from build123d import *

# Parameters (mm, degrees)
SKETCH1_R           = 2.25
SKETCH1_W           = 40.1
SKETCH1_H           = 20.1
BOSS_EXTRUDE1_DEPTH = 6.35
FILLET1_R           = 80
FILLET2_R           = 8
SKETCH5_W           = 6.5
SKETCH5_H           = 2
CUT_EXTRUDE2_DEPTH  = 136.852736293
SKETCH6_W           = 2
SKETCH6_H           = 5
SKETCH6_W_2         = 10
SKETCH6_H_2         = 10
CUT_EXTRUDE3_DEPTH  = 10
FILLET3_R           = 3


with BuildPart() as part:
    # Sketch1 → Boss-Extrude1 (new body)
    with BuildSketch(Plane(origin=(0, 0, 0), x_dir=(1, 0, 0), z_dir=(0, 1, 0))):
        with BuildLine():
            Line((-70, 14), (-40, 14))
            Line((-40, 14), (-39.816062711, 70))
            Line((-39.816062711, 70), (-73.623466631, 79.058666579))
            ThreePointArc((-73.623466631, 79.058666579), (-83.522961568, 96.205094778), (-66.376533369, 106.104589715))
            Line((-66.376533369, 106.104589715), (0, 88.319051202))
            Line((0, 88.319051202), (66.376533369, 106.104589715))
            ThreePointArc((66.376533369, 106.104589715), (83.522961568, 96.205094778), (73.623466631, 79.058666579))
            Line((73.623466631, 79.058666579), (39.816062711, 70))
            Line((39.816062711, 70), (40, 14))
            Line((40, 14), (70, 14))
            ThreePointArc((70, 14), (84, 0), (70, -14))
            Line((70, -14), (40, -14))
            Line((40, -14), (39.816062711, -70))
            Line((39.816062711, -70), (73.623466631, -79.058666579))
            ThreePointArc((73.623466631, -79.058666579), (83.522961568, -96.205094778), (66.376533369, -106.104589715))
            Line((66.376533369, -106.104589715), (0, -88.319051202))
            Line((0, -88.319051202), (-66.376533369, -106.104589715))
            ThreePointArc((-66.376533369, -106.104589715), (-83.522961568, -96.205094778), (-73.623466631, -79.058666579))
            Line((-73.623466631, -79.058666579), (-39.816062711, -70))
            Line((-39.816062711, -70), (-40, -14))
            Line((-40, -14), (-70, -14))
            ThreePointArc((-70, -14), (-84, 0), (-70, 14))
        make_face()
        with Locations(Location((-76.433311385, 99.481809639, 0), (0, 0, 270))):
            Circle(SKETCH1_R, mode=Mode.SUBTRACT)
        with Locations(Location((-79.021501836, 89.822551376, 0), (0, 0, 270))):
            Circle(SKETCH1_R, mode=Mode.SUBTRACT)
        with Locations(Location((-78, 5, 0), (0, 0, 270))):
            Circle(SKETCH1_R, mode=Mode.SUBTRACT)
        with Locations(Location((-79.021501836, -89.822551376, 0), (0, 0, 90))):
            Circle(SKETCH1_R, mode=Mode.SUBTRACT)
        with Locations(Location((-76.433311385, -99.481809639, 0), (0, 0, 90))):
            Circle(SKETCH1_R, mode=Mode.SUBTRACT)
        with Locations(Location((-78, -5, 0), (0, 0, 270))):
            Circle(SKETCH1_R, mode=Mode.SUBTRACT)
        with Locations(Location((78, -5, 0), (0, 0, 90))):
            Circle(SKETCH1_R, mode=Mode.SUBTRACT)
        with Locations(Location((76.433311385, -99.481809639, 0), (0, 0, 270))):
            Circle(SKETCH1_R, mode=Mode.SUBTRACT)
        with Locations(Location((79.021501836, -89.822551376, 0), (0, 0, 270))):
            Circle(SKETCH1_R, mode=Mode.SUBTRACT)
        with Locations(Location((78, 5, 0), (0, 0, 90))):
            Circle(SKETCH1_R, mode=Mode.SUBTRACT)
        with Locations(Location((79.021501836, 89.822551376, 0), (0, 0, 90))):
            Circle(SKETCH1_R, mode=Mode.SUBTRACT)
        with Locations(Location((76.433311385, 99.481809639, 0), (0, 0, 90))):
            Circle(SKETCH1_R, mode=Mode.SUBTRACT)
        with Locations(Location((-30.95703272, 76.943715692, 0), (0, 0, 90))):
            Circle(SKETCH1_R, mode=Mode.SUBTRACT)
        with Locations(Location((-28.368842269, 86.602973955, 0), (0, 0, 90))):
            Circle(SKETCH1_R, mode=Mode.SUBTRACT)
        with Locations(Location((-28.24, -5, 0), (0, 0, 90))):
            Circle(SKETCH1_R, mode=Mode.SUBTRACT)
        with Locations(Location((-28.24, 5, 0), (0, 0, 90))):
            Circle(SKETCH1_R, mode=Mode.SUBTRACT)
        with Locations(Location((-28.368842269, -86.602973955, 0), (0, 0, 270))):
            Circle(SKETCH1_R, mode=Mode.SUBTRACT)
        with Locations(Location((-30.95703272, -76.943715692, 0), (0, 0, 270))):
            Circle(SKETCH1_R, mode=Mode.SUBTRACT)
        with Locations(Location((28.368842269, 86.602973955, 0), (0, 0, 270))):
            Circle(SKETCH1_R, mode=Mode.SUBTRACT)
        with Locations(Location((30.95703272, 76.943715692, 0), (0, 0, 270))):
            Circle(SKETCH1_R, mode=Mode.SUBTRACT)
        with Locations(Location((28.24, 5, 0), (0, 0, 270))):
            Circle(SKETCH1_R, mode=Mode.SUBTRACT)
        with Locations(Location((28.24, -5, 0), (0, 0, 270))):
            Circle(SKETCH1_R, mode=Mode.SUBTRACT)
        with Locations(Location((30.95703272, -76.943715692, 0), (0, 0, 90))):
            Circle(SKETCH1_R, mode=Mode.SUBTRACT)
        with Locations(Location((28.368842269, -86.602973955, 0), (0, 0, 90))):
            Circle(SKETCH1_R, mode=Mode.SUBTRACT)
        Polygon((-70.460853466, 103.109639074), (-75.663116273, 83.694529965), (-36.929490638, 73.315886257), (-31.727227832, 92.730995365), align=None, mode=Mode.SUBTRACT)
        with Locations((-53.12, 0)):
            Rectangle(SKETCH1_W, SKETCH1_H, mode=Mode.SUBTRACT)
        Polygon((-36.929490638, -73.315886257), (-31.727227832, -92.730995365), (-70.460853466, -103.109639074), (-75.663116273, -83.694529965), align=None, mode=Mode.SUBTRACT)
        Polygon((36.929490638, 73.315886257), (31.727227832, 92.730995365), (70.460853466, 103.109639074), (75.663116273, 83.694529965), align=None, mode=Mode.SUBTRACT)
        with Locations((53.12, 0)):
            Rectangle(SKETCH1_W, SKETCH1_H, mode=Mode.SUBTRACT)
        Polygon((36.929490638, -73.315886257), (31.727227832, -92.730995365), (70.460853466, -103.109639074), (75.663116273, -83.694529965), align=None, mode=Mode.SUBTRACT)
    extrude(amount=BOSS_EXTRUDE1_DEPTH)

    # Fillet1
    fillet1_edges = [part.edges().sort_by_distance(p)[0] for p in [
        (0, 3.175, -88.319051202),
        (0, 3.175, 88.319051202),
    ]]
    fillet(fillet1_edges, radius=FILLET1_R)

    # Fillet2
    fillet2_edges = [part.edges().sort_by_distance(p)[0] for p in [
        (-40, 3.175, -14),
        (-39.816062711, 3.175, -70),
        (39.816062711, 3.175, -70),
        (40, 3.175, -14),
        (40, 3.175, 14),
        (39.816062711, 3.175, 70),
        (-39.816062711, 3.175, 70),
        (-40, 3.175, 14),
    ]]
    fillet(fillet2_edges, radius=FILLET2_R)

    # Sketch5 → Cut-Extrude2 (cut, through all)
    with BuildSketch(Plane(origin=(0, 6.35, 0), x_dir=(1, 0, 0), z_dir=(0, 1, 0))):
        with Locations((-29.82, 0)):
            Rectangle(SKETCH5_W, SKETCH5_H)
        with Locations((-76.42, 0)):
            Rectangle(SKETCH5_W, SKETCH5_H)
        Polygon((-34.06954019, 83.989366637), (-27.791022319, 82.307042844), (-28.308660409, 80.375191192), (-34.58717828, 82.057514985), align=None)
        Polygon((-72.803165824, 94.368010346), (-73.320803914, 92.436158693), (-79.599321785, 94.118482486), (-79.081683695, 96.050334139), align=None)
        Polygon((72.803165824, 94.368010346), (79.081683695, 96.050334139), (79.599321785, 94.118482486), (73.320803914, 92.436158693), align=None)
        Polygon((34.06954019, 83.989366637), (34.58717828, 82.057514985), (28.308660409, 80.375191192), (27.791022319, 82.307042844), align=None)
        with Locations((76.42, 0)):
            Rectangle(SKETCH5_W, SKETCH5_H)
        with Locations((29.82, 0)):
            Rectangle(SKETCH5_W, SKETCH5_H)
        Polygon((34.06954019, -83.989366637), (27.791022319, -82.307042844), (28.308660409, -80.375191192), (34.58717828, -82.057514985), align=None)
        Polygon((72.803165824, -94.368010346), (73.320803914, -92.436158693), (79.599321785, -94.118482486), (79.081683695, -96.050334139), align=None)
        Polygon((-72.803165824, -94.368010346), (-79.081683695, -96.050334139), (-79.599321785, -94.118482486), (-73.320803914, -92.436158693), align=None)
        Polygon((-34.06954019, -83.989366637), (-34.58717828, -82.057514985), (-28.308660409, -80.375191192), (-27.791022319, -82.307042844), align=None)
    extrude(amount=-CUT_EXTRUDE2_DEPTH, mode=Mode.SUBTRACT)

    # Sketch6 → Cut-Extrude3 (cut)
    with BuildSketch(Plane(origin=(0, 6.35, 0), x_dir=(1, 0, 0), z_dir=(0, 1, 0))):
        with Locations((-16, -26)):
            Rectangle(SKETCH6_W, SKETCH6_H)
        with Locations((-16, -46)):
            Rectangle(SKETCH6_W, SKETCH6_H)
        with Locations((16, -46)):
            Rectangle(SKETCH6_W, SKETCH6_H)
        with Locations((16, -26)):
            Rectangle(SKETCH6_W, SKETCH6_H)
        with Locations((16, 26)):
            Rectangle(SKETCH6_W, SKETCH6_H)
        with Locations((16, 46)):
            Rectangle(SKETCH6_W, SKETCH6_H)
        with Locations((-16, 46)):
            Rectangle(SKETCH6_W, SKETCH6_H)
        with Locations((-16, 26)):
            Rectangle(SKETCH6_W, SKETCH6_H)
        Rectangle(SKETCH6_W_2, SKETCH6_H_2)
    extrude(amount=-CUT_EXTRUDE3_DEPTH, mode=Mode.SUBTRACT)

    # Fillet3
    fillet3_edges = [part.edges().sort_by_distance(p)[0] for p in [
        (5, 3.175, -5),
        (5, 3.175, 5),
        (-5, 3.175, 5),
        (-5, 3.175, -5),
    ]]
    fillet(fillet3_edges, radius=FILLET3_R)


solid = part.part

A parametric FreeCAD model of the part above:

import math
import FreeCAD as App
import Part
import Sketcher
from FreeCAD import Vector
Q = App.Units.Quantity


def edges_at(feature, points):
    """Names of the edges that pass closest to the given points."""
    edges = feature.Shape.Edges
    near = lambda p: min(range(len(edges)), key=lambda i: edges[i].distToShape(Part.Vertex(*p))[0])
    return sorted({f"Edge{near(p) + 1}" for p in points})


def add_polygon(sketch, points):
    """Adds a closed chain of lines whose ends are joined by coincident constraints."""
    first, n = sketch.GeometryCount, len(points)
    for a, b in zip(points, points[1:] + points[:1]):
        sketch.addGeometry(Part.LineSegment(App.Vector(*a, 0), App.Vector(*b, 0)), False)
    for i in range(n):
        sketch.addConstraint(Sketcher.Constraint("Coincident", first + i, 2, first + (i + 1) % n, 1))

doc = App.newDocument("Part")
body = doc.addObject("PartDesign::Body", "Body")

# Sketch on XZ plane
sketch1 = body.newObject("Sketcher::SketchObject", "Sketch")
sketch1.AttachmentSupport = (doc.getObject("XZ_Plane"), [""])
sketch1.MapMode = "FlatFace"
sketch1.addGeometry(Part.LineSegment(Vector(-40, -14, 0), Vector(-70, -14, 0)), False)  # 0
sketch1.addGeometry(Part.ArcOfCircle(Part.Circle(Vector(-70, 0, 0), Vector(0, 0, 1), 14), math.radians(90), math.radians(270)), False)  # 1
sketch1.addGeometry(Part.LineSegment(Vector(-70, 14, 0), Vector(-40, 14, 0)), False)  # 2
sketch1.addGeometry(Part.LineSegment(Vector(-40, 14, 0), Vector(-39.816063, 70, 0)), False)  # 3
sketch1.addGeometry(Part.LineSegment(Vector(-39.816063, 70, 0), Vector(-73.623467, 79.058667, 0)), False)  # 4
sketch1.addGeometry(Part.ArcOfCircle(Part.Circle(Vector(-70, 92.581628, 0), Vector(0, 0, 1), 14), math.radians(75), math.radians(255)), False)  # 5
sketch1.addGeometry(Part.LineSegment(Vector(-66.376533, 106.10459, 0), Vector(0, 88.319051, 0)), False)  # 6
sketch1.addGeometry(Part.LineSegment(Vector(0, 88.319051, 0), Vector(66.376533, 106.10459, 0)), False)  # 7
sketch1.addGeometry(Part.ArcOfCircle(Part.Circle(Vector(70, 92.581628, 0), Vector(0, 0, 1), 14), math.radians(-75), math.radians(105)), False)  # 8
sketch1.addGeometry(Part.LineSegment(Vector(73.623467, 79.058667, 0), Vector(39.816063, 70, 0)), False)  # 9
sketch1.addGeometry(Part.LineSegment(Vector(39.816063, 70, 0), Vector(40, 14, 0)), False)  # 10
sketch1.addGeometry(Part.LineSegment(Vector(40, 14, 0), Vector(70, 14, 0)), False)  # 11
sketch1.addGeometry(Part.ArcOfCircle(Part.Circle(Vector(70, 0, 0), Vector(0, 0, 1), 14), math.radians(-90), math.radians(90)), False)  # 12
sketch1.addGeometry(Part.LineSegment(Vector(70, -14, 0), Vector(40, -14, 0)), False)  # 13
sketch1.addGeometry(Part.LineSegment(Vector(40, -14, 0), Vector(39.816063, -70, 0)), False)  # 14
sketch1.addGeometry(Part.LineSegment(Vector(39.816063, -70, 0), Vector(73.623467, -79.058667, 0)), False)  # 15
sketch1.addGeometry(Part.ArcOfCircle(Part.Circle(Vector(70, -92.581628, 0), Vector(0, 0, 1), 14), math.radians(-105), math.radians(75)), False)  # 16
sketch1.addGeometry(Part.LineSegment(Vector(66.376533, -106.10459, 0), Vector(0, -88.319051, 0)), False)  # 17
sketch1.addGeometry(Part.LineSegment(Vector(0, -88.319051, 0), Vector(-66.376533, -106.10459, 0)), False)  # 18
sketch1.addGeometry(Part.ArcOfCircle(Part.Circle(Vector(-70, -92.581628, 0), Vector(0, 0, 1), 14), math.radians(105), math.radians(285)), False)  # 19
sketch1.addGeometry(Part.LineSegment(Vector(-73.623467, -79.058667, 0), Vector(-39.816063, -70, 0)), False)  # 20
sketch1.addGeometry(Part.LineSegment(Vector(-39.816063, -70, 0), Vector(-40, -14, 0)), False)  # 21
sketch1.addGeometry(Part.Circle(Vector(76.433311, 99.48181, 0), Vector(0, 0, 1), 2.25), False)  # 22
sketch1.addGeometry(Part.Circle(Vector(79.021502, 89.822551, 0), Vector(0, 0, 1), 2.25), False)  # 23
add_polygon(sketch1, [(36.929491, 73.315886), (75.663116, 83.69453), (70.460853, 103.109639), (31.727228, 92.730995)])  # lines 24-27
sketch1.addGeometry(Part.Circle(Vector(28.368842, 86.602974, 0), Vector(0, 0, 1), 2.25), False)  # 28
sketch1.addGeometry(Part.Circle(Vector(30.957033, 76.943716, 0), Vector(0, 0, 1), 2.25), False)  # 29
sketch1.addGeometry(Part.Circle(Vector(78, 5, 0), Vector(0, 0, 1), 2.25), False)  # 30
sketch1.addGeometry(Part.Circle(Vector(28.24, 5, 0), Vector(0, 0, 1), 2.25), False)  # 31
sketch1.addGeometry(Part.Circle(Vector(-28.368842, 86.602974, 0), Vector(0, 0, 1), 2.25), False)  # 32
sketch1.addGeometry(Part.Circle(Vector(-30.957033, 76.943716, 0), Vector(0, 0, 1), 2.25), False)  # 33
add_polygon(sketch1, [(-36.929491, 73.315886), (-31.727228, 92.730995), (-70.460853, 103.109639), (-75.663116, 83.69453)])  # lines 34-37
sketch1.addGeometry(Part.Circle(Vector(-76.433311, 99.48181, 0), Vector(0, 0, 1), 2.25), False)  # 38
sketch1.addGeometry(Part.Circle(Vector(-79.021502, 89.822551, 0), Vector(0, 0, 1), 2.25), False)  # 39
sketch1.addGeometry(Part.Circle(Vector(-28.24, 5, 0), Vector(0, 0, 1), 2.25), False)  # 40
sketch1.addGeometry(Part.Circle(Vector(-78, 5, 0), Vector(0, 0, 1), 2.25), False)  # 41
sketch1.addGeometry(Part.Circle(Vector(78, -5, 0), Vector(0, 0, 1), 2.25), False)  # 42
add_polygon(sketch1, [(33.07, 10.05), (33.07, -10.05), (73.17, -10.05), (73.17, 10.05)])  # lines 43-46
sketch1.addGeometry(Part.Circle(Vector(28.24, -5, 0), Vector(0, 0, 1), 2.25), False)  # 47
sketch1.addGeometry(Part.Circle(Vector(79.021502, -89.822551, 0), Vector(0, 0, 1), 2.25), False)  # 48
sketch1.addGeometry(Part.Circle(Vector(76.433311, -99.48181, 0), Vector(0, 0, 1), 2.25), False)  # 49
add_polygon(sketch1, [(36.929491, -73.315886), (31.727228, -92.730995), (70.460853, -103.109639), (75.663116, -83.69453)])  # lines 50-53
sketch1.addGeometry(Part.Circle(Vector(30.957033, -76.943716, 0), Vector(0, 0, 1), 2.25), False)  # 54
sketch1.addGeometry(Part.Circle(Vector(28.368842, -86.602974, 0), Vector(0, 0, 1), 2.25), False)  # 55
sketch1.addGeometry(Part.Circle(Vector(-28.24, -5, 0), Vector(0, 0, 1), 2.25), False)  # 56
add_polygon(sketch1, [(-73.17, 10.05), (-73.17, -10.05), (-33.07, -10.05), (-33.07, 10.05)])  # lines 57-60
sketch1.addGeometry(Part.Circle(Vector(-78, -5, 0), Vector(0, 0, 1), 2.25), False)  # 61
sketch1.addGeometry(Part.Circle(Vector(-30.957033, -76.943716, 0), Vector(0, 0, 1), 2.25), False)  # 62
sketch1.addGeometry(Part.Circle(Vector(-28.368842, -86.602974, 0), Vector(0, 0, 1), 2.25), False)  # 63
add_polygon(sketch1, [(-70.460853, -103.109639), (-31.727228, -92.730995), (-36.929491, -73.315886), (-75.663116, -83.69453)])  # lines 64-67
sketch1.addGeometry(Part.Circle(Vector(-79.021502, -89.822551, 0), Vector(0, 0, 1), 2.25), False)  # 68
sketch1.addGeometry(Part.Circle(Vector(-76.433311, -99.48181, 0), Vector(0, 0, 1), 2.25), False)  # 69
sketch1.addConstraint([
    Sketcher.Constraint("Tangent", 0, 2, 1, 2),
    Sketcher.Constraint("Tangent", 1, 1, 2, 1),
    Sketcher.Constraint("Coincident", 2, 2, 3, 1),
    Sketcher.Constraint("Coincident", 3, 2, 4, 1),
    Sketcher.Constraint("Tangent", 4, 2, 5, 2),
    Sketcher.Constraint("Tangent", 5, 1, 6, 1),
    Sketcher.Constraint("Coincident", 6, 2, 7, 1),
    Sketcher.Constraint("Tangent", 7, 2, 8, 2),
    Sketcher.Constraint("Tangent", 8, 1, 9, 1),
    Sketcher.Constraint("Coincident", 9, 2, 10, 1),
    Sketcher.Constraint("Coincident", 10, 2, 11, 1),
    Sketcher.Constraint("Tangent", 11, 2, 12, 2),
    Sketcher.Constraint("Tangent", 12, 1, 13, 1),
    Sketcher.Constraint("Coincident", 13, 2, 14, 1),
    Sketcher.Constraint("Coincident", 14, 2, 15, 1),
    Sketcher.Constraint("Tangent", 15, 2, 16, 2),
    Sketcher.Constraint("Tangent", 16, 1, 17, 1),
    Sketcher.Constraint("Coincident", 17, 2, 18, 1),
    Sketcher.Constraint("Tangent", 18, 2, 19, 2),
    Sketcher.Constraint("Tangent", 19, 1, 20, 1),
    Sketcher.Constraint("Coincident", 20, 2, 21, 1),
    Sketcher.Constraint("Coincident", 21, 2, 0, 1),
    Sketcher.Constraint("Horizontal", 0),
    Sketcher.Constraint("Horizontal", 2),
    Sketcher.Constraint("Horizontal", 11),
    Sketcher.Constraint("Horizontal", 13),
    Sketcher.Constraint("Vertical", 43),
    Sketcher.Constraint("Horizontal", 44),
    Sketcher.Constraint("Vertical", 45),
    Sketcher.Constraint("Horizontal", 46),
    Sketcher.Constraint("Vertical", 57),
    Sketcher.Constraint("Horizontal", 58),
    Sketcher.Constraint("Vertical", 59),
    Sketcher.Constraint("Horizontal", 60),
    Sketcher.Constraint("Equal", 1, 5),
    Sketcher.Constraint("Equal", 5, 8),
    Sketcher.Constraint("Equal", 8, 12),
    Sketcher.Constraint("Equal", 12, 16),
    Sketcher.Constraint("Equal", 16, 19),
    Sketcher.Constraint("Equal", 22, 23),
    Sketcher.Constraint("Equal", 23, 28),
    Sketcher.Constraint("Equal", 28, 29),
    Sketcher.Constraint("Equal", 29, 30),
    Sketcher.Constraint("Equal", 30, 31),
    Sketcher.Constraint("Equal", 31, 32),
    Sketcher.Constraint("Equal", 32, 33),
    Sketcher.Constraint("Equal", 33, 38),
    Sketcher.Constraint("Equal", 38, 39),
    Sketcher.Constraint("Equal", 39, 40),
    Sketcher.Constraint("Equal", 40, 41),
    Sketcher.Constraint("Equal", 41, 42),
    Sketcher.Constraint("Equal", 42, 47),
    Sketcher.Constraint("Equal", 47, 48),
    Sketcher.Constraint("Equal", 48, 49),
    Sketcher.Constraint("Equal", 49, 54),
    Sketcher.Constraint("Equal", 54, 55),
    Sketcher.Constraint("Equal", 55, 56),
    Sketcher.Constraint("Equal", 56, 61),
    Sketcher.Constraint("Equal", 61, 62),
    Sketcher.Constraint("Equal", 62, 63),
    Sketcher.Constraint("Equal", 63, 68),
    Sketcher.Constraint("Equal", 68, 69),
    Sketcher.Constraint("Symmetric", 1, 3, 12, 3, -1, 1),
    Sketcher.Constraint("Symmetric", 5, 3, 16, 3, -1, 1),
    Sketcher.Constraint("Symmetric", 8, 3, 19, 3, -1, 1),
    Sketcher.Constraint("Symmetric", 41, 3, 42, 3, -1, 1),
    Sketcher.Constraint("Symmetric", 40, 3, 47, 3, -1, 1),
    Sketcher.Constraint("Symmetric", 39, 3, 48, 3, -1, 1),
    Sketcher.Constraint("Symmetric", 38, 3, 49, 3, -1, 1),
    Sketcher.Constraint("Symmetric", 33, 3, 54, 3, -1, 1),
    Sketcher.Constraint("Symmetric", 32, 3, 55, 3, -1, 1),
    Sketcher.Constraint("Symmetric", 31, 3, 56, 3, -1, 1),
    Sketcher.Constraint("Symmetric", 30, 3, 61, 3, -1, 1),
    Sketcher.Constraint("Symmetric", 29, 3, 62, 3, -1, 1),
    Sketcher.Constraint("Symmetric", 28, 3, 63, 3, -1, 1),
    Sketcher.Constraint("Symmetric", 23, 3, 68, 3, -1, 1),
    Sketcher.Constraint("Symmetric", 22, 3, 69, 3, -1, 1),
    Sketcher.Constraint("Symmetric", 3, 2, 14, 2, -1, 1),
    Sketcher.Constraint("Symmetric", 6, 2, 17, 2, -1, 1),
    Sketcher.Constraint("Symmetric", 9, 2, 20, 2, -1, 1),
    Sketcher.Constraint("Symmetric", 34, 2, 50, 2, -1, 1),
    Sketcher.Constraint("Symmetric", 35, 2, 51, 2, -1, 1),
    Sketcher.Constraint("Symmetric", 36, 2, 52, 2, -1, 1),
    Sketcher.Constraint("Symmetric", 37, 2, 53, 2, -1, 1),
    Sketcher.Constraint("Symmetric", 45, 2, 57, 2, -1, 1),
    Sketcher.Constraint("Symmetric", 43, 2, 59, 2, -1, 1),
    Sketcher.Constraint("Symmetric", 26, 2, 64, 2, -1, 1),
    Sketcher.Constraint("Symmetric", 27, 2, 65, 2, -1, 1),
    Sketcher.Constraint("Symmetric", 24, 2, 66, 2, -1, 1),
    Sketcher.Constraint("Symmetric", 25, 2, 67, 2, -1, 1),
    Sketcher.Constraint("Symmetric", 5, 3, 8, 3, -2),
    Sketcher.Constraint("Symmetric", 28, 3, 32, 3, -2),
    Sketcher.Constraint("Symmetric", 29, 3, 33, 3, -2),
    Sketcher.Constraint("Symmetric", 22, 3, 38, 3, -2),
    Sketcher.Constraint("Symmetric", 23, 3, 39, 3, -2),
    Sketcher.Constraint("Symmetric", 31, 3, 40, 3, -2),
    Sketcher.Constraint("Symmetric", 30, 3, 41, 3, -2),
    Sketcher.Constraint("Symmetric", 3, 2, 9, 2, -2),
    Sketcher.Constraint("Symmetric", 2, 2, 10, 2, -2),
    Sketcher.Constraint("Symmetric", 26, 2, 34, 2, -2),
    Sketcher.Constraint("Symmetric", 25, 2, 35, 2, -2),
    Sketcher.Constraint("Symmetric", 24, 2, 36, 2, -2),
    Sketcher.Constraint("Symmetric", 27, 2, 37, 2, -2),
    Sketcher.Constraint("PointOnObject", 6, 2, -2),
    Sketcher.Constraint("Parallel", 4, 6),
    Sketcher.Constraint("Parallel", 3, 14),
    Sketcher.Constraint("Parallel", 10, 21),
    Sketcher.Constraint("Parallel", 20, 24),
    Sketcher.Constraint("Perpendicular", 24, 25),
    Sketcher.Constraint("Perpendicular", 25, 26),
    Sketcher.Constraint("Perpendicular", 26, 27),
    Sketcher.Constraint("Horizontal", 30, 3, 31, 3),
    Sketcher.Constraint("Horizontal", 44, 2, 57, 2),
    Sketcher.Constraint("Vertical", 1, 3, 5, 3),
    Sketcher.Constraint("Radius", 1, 14.0),
    Sketcher.Constraint("Diameter", 22, 4.5),
    Sketcher.Constraint("DistanceX", 0, 2, 0, 1, 30.0),
    Sketcher.Constraint("Angle", 4, Q("165 deg")),
    Sketcher.Constraint("Distance", 4, 35.0),
    Sketcher.Constraint("DistanceX", 44, 1, 44, 2, 40.1),
    Sketcher.Constraint("DistanceY", 43, 2, 43, 1, 20.1),
    Sketcher.Constraint("DistanceX", 1, 3, -1, 1, 70.0),
    Sketcher.Constraint("DistanceX", -1, 1, 30, 3, 78.0),
    Sketcher.Constraint("DistanceY", -1, 1, 30, 3, 5.0),
    Sketcher.Constraint("DistanceY", -1, 1, 3, 2, 70.0),
    Sketcher.Constraint("Distance", 24, 40.1),
    Sketcher.Constraint("Distance", 25, 20.1),
    Sketcher.Constraint("DistanceX", -1, 1, 31, 3, 28.24),
    Sketcher.Constraint("DistanceX", -1, 1, 43, 2, 33.07),
    Sketcher.Constraint("DistanceX", -1, 1, 23, 3, 79.021502),
    Sketcher.Constraint("DistanceX", -1, 1, 22, 3, 76.433311),
    Sketcher.Constraint("DistanceY", -1, 1, 22, 3, 99.48181),
    Sketcher.Constraint("DistanceY", -1, 1, 23, 3, 89.822551),
    Sketcher.Constraint("DistanceY", -1, 1, 24, 2, 83.69453),
    Sketcher.Constraint("DistanceX", -1, 1, 27, 2, 36.929491),
    Sketcher.Constraint("DistanceX", -1, 1, 28, 3, 28.368842),
    Sketcher.Constraint("DistanceY", -1, 1, 28, 3, 86.602974),
    Sketcher.Constraint("DistanceX", -1, 1, 29, 3, 30.957033),
    Sketcher.Constraint("DistanceY", -1, 1, 29, 3, 76.943716),
])
pad1 = body.newObject("PartDesign::Pad", "Pad")
pad1.Profile = sketch1
pad1.Length = 6.35
pad1.Reversed = True
doc.recompute()

fillet = body.newObject("PartDesign::Fillet", "Fillet")
fillet.Base = (pad1, edges_at(pad1, [(0, 3.175, -88.319), (0, 3.175, 88.319)]))
fillet.Radius = 80
doc.recompute()

fillet2 = body.newObject("PartDesign::Fillet", "Fillet001")
fillet2.Base = (fillet, edges_at(fillet, [
    (-40, 3.175, -14),
    (-39.816, 3.175, -70),
    (39.816, 3.175, -70),
    (40, 3.175, -14),
    (40, 3.175, 14),
    (39.816, 3.175, 70),
    (-39.816, 3.175, 70),
    (-40, 3.175, 14),
]))
fillet2.Radius = 8

# Sketch on XZ plane
sketch2 = body.newObject("Sketcher::SketchObject", "Sketch001")
sketch2.AttachmentSupport = (doc.getObject("XZ_Plane"), [""])
sketch2.MapMode = "FlatFace"
sketch2.AttachmentOffset = App.Placement(Vector(0, 0, -6.35), App.Rotation())
add_polygon(sketch2, [(-33.07, -1), (-33.07, 1), (-26.57, 1), (-26.57, -1)])  # lines 0-3
add_polygon(sketch2, [(-79.67, -1), (-79.67, 1), (-73.17, 1), (-73.17, -1)])  # lines 4-7
add_polygon(sketch2, [(-27.791022, -82.307043), (-34.06954, -83.989367), (-34.587178, -82.057515), (-28.30866, -80.375191)])  # lines 8-11
add_polygon(sketch2, [(-73.320804, -92.436159), (-72.803166, -94.36801), (-79.081684, -96.050334), (-79.599322, -94.118482)])  # lines 12-15
add_polygon(sketch2, [(79.081684, -96.050334), (72.803166, -94.36801), (73.320804, -92.436159), (79.599322, -94.118482)])  # lines 16-19
add_polygon(sketch2, [(34.587178, -82.057515), (34.06954, -83.989367), (27.791022, -82.307043), (28.30866, -80.375191)])  # lines 20-23
add_polygon(sketch2, [(73.17, -1), (73.17, 1), (79.67, 1), (79.67, -1)])  # lines 24-27
add_polygon(sketch2, [(26.57, -1), (26.57, 1), (33.07, 1), (33.07, -1)])  # lines 28-31
add_polygon(sketch2, [(27.791022, 82.307043), (34.06954, 83.989367), (34.587178, 82.057515), (28.30866, 80.375191)])  # lines 32-35
add_polygon(sketch2, [(73.320804, 92.436159), (72.803166, 94.36801), (79.081684, 96.050334), (79.599322, 94.118482)])  # lines 36-39
add_polygon(sketch2, [(-79.081684, 96.050334), (-72.803166, 94.36801), (-73.320804, 92.436159), (-79.599322, 94.118482)])  # lines 40-43
add_polygon(sketch2, [(-34.587178, 82.057515), (-34.06954, 83.989367), (-27.791022, 82.307043), (-28.30866, 80.375191)])  # lines 44-47
sketch2.addConstraint([
    Sketcher.Constraint("Vertical", 0),
    Sketcher.Constraint("Horizontal", 1),
    Sketcher.Constraint("Vertical", 2),
    Sketcher.Constraint("Horizontal", 3),
    Sketcher.Constraint("Vertical", 4),
    Sketcher.Constraint("Horizontal", 5),
    Sketcher.Constraint("Vertical", 6),
    Sketcher.Constraint("Horizontal", 7),
    Sketcher.Constraint("Vertical", 24),
    Sketcher.Constraint("Horizontal", 25),
    Sketcher.Constraint("Vertical", 26),
    Sketcher.Constraint("Horizontal", 27),
    Sketcher.Constraint("Vertical", 28),
    Sketcher.Constraint("Horizontal", 29),
    Sketcher.Constraint("Vertical", 30),
    Sketcher.Constraint("Horizontal", 31),
    Sketcher.Constraint("Symmetric", 6, 2, 24, 2, -1, 1),
    Sketcher.Constraint("Symmetric", 4, 2, 26, 2, -1, 1),
    Sketcher.Constraint("Symmetric", 2, 2, 28, 2, -1, 1),
    Sketcher.Constraint("Symmetric", 0, 2, 30, 2, -1, 1),
    Sketcher.Constraint("Symmetric", 8, 2, 32, 2, -1, 1),
    Sketcher.Constraint("Symmetric", 9, 2, 33, 2, -1, 1),
    Sketcher.Constraint("Symmetric", 10, 2, 34, 2, -1, 1),
    Sketcher.Constraint("Symmetric", 11, 2, 35, 2, -1, 1),
    Sketcher.Constraint("Symmetric", 12, 2, 36, 2, -1, 1),
    Sketcher.Constraint("Symmetric", 13, 2, 37, 2, -1, 1),
    Sketcher.Constraint("Symmetric", 14, 2, 38, 2, -1, 1),
    Sketcher.Constraint("Symmetric", 15, 2, 39, 2, -1, 1),
    Sketcher.Constraint("Symmetric", 16, 2, 40, 2, -1, 1),
    Sketcher.Constraint("Symmetric", 17, 2, 41, 2, -1, 1),
    Sketcher.Constraint("Symmetric", 18, 2, 42, 2, -1, 1),
    Sketcher.Constraint("Symmetric", 19, 2, 43, 2, -1, 1),
    Sketcher.Constraint("Symmetric", 20, 2, 44, 2, -1, 1),
    Sketcher.Constraint("Symmetric", 21, 2, 45, 2, -1, 1),
    Sketcher.Constraint("Symmetric", 22, 2, 46, 2, -1, 1),
    Sketcher.Constraint("Symmetric", 23, 2, 47, 2, -1, 1),
    Sketcher.Constraint("Symmetric", 12, 2, 16, 2, -2),
    Sketcher.Constraint("Symmetric", 15, 2, 17, 2, -2),
    Sketcher.Constraint("Symmetric", 14, 2, 18, 2, -2),
    Sketcher.Constraint("Symmetric", 13, 2, 19, 2, -2),
    Sketcher.Constraint("Symmetric", 8, 2, 20, 2, -2),
    Sketcher.Constraint("Symmetric", 11, 2, 21, 2, -2),
    Sketcher.Constraint("Symmetric", 10, 2, 22, 2, -2),
    Sketcher.Constraint("Symmetric", 9, 2, 23, 2, -2),
    Sketcher.Constraint("Perpendicular", 8, 9),
    Sketcher.Constraint("Perpendicular", 9, 10),
    Sketcher.Constraint("Perpendicular", 10, 11),
    Sketcher.Constraint("Parallel", 11, 12),
    Sketcher.Constraint("Perpendicular", 12, 13),
    Sketcher.Constraint("Perpendicular", 13, 14),
    Sketcher.Constraint("Perpendicular", 14, 15),
    Sketcher.Constraint("Horizontal", 1, 2, 4, 2),
    Sketcher.Constraint("Horizontal", 3, 2, 6, 2),
    Sketcher.Constraint("Horizontal", 5, 2, 24, 2),
    Sketcher.Constraint("Equal", 3, 5),
    Sketcher.Constraint("Equal", 11, 12),
    Sketcher.Constraint("Equal", 10, 13),
    Sketcher.Constraint("DistanceY", 0, 1, 0, 2, 2.0),
    Sketcher.Constraint("Angle", 8, Q("-165 deg")),
    Sketcher.Constraint("Distance", 9, 2.0),
    Sketcher.Constraint("DistanceX", 1, 1, 1, 2, 6.5),
    Sketcher.Constraint("Distance", 8, 6.5),
    Sketcher.Constraint("DistanceX", 4, 2, 0, 2, 46.6),
    Sketcher.Constraint("DistanceX", 0, 2, -1, 1, 33.07),
    Sketcher.Constraint("DistanceX", 21, 2, 18, 2, 51.808299),
    Sketcher.Constraint("DistanceX", 8, 2, -1, 1, 34.06954),
    Sketcher.Constraint("DistanceY", 10, 2, -1, 1, 80.375191),
    Sketcher.Constraint("DistanceY", 12, 2, -1, 1, 94.36801),
])
pocket1 = body.newObject("PartDesign::Pocket", "Pocket")
pocket1.Profile = sketch2
pocket1.Type = "ThroughAll"
pocket1.Reversed = True

# Sketch on XZ plane
sketch3 = body.newObject("Sketcher::SketchObject", "Sketch002")
sketch3.AttachmentSupport = (doc.getObject("XZ_Plane"), [""])
sketch3.MapMode = "FlatFace"
sketch3.AttachmentOffset = App.Placement(Vector(0, 0, -6.35), App.Rotation())
add_polygon(sketch3, [(-17, 23.5), (-17, 28.5), (-15, 28.5), (-15, 23.5)])  # lines 0-3
add_polygon(sketch3, [(-17, 43.5), (-17, 48.5), (-15, 48.5), (-15, 43.5)])  # lines 4-7
add_polygon(sketch3, [(15, 43.5), (15, 48.5), (17, 48.5), (17, 43.5)])  # lines 8-11
add_polygon(sketch3, [(15, 23.5), (15, 28.5), (17, 28.5), (17, 23.5)])  # lines 12-15
add_polygon(sketch3, [(15, -28.5), (15, -23.5), (17, -23.5), (17, -28.5)])  # lines 16-19
add_polygon(sketch3, [(15, -48.5), (15, -43.5), (17, -43.5), (17, -48.5)])  # lines 20-23
add_polygon(sketch3, [(-17, -48.5), (-17, -43.5), (-15, -43.5), (-15, -48.5)])  # lines 24-27
add_polygon(sketch3, [(-17, -28.5), (-17, -23.5), (-15, -23.5), (-15, -28.5)])  # lines 28-31
add_polygon(sketch3, [(-5, -5), (-5, 5), (5, 5), (5, -5)])  # lines 32-35
sketch3.addConstraint([
    Sketcher.Constraint("Vertical", 0),
    Sketcher.Constraint("Horizontal", 1),
    Sketcher.Constraint("Vertical", 2),
    Sketcher.Constraint("Horizontal", 3),
    Sketcher.Constraint("Vertical", 4),
    Sketcher.Constraint("Horizontal", 5),
    Sketcher.Constraint("Vertical", 6),
    Sketcher.Constraint("Horizontal", 7),
    Sketcher.Constraint("Vertical", 8),
    Sketcher.Constraint("Horizontal", 9),
    Sketcher.Constraint("Vertical", 10),
    Sketcher.Constraint("Horizontal", 11),
    Sketcher.Constraint("Vertical", 12),
    Sketcher.Constraint("Horizontal", 13),
    Sketcher.Constraint("Vertical", 14),
    Sketcher.Constraint("Horizontal", 15),
    Sketcher.Constraint("Vertical", 16),
    Sketcher.Constraint("Horizontal", 17),
    Sketcher.Constraint("Vertical", 18),
    Sketcher.Constraint("Horizontal", 19),
    Sketcher.Constraint("Vertical", 20),
    Sketcher.Constraint("Horizontal", 21),
    Sketcher.Constraint("Vertical", 22),
    Sketcher.Constraint("Horizontal", 23),
    Sketcher.Constraint("Vertical", 24),
    Sketcher.Constraint("Horizontal", 25),
    Sketcher.Constraint("Vertical", 26),
    Sketcher.Constraint("Horizontal", 27),
    Sketcher.Constraint("Vertical", 28),
    Sketcher.Constraint("Horizontal", 29),
    Sketcher.Constraint("Vertical", 30),
    Sketcher.Constraint("Horizontal", 31),
    Sketcher.Constraint("Vertical", 32),
    Sketcher.Constraint("Horizontal", 33),
    Sketcher.Constraint("Vertical", 34),
    Sketcher.Constraint("Horizontal", 35),
    Sketcher.Constraint("Symmetric", 2, 2, 16, 2, -1, 1),
    Sketcher.Constraint("Symmetric", 0, 2, 18, 2, -1, 1),
    Sketcher.Constraint("Symmetric", 6, 2, 20, 2, -1, 1),
    Sketcher.Constraint("Symmetric", 4, 2, 22, 2, -1, 1),
    Sketcher.Constraint("Symmetric", 10, 2, 24, 2, -1, 1),
    Sketcher.Constraint("Symmetric", 8, 2, 26, 2, -1, 1),
    Sketcher.Constraint("Symmetric", 14, 2, 28, 2, -1, 1),
    Sketcher.Constraint("Symmetric", 12, 2, 30, 2, -1, 1),
    Sketcher.Constraint("Symmetric", 32, 2, 34, 2, -1, 1),
    Sketcher.Constraint("Symmetric", 5, 2, 8, 2, -2),
    Sketcher.Constraint("Symmetric", 7, 2, 10, 2, -2),
    Sketcher.Constraint("Symmetric", 1, 2, 12, 2, -2),
    Sketcher.Constraint("Symmetric", 3, 2, 14, 2, -2),
    Sketcher.Constraint("Vertical", 3, 2, 4, 2),
    Sketcher.Constraint("Vertical", 2, 2, 5, 2),
    Sketcher.Constraint("Equal", 2, 4),
    Sketcher.Constraint("Equal", 35, 32),
    Sketcher.Constraint("DistanceX", 1, 1, 1, 2, 2.0),
    Sketcher.Constraint("DistanceX", 33, 1, 33, 2, 10.0),
    Sketcher.Constraint("DistanceY", 0, 1, 0, 2, 5.0),
    Sketcher.Constraint("DistanceX", 0, 2, -1, 1, 17.0),
    Sketcher.Constraint("DistanceY", 0, 2, 4, 2, 20.0),
    Sketcher.Constraint("DistanceY", 16, 2, 15, 2, 47.0),
])
pocket2 = body.newObject("PartDesign::Pocket", "Pocket001")
pocket2.Profile = sketch3
pocket2.Length = 10
pocket2.Reversed = True
doc.recompute()

fillet3 = body.newObject("PartDesign::Fillet", "Fillet002")
fillet3.Base = (pocket2, edges_at(pocket2, [
    (5, 3.175, -5),
    (5, 3.175, 5),
    (-5, 3.175, 5),
    (-5, 3.175, -5),
]))
fillet3.Radius = 3

doc.recompute()
